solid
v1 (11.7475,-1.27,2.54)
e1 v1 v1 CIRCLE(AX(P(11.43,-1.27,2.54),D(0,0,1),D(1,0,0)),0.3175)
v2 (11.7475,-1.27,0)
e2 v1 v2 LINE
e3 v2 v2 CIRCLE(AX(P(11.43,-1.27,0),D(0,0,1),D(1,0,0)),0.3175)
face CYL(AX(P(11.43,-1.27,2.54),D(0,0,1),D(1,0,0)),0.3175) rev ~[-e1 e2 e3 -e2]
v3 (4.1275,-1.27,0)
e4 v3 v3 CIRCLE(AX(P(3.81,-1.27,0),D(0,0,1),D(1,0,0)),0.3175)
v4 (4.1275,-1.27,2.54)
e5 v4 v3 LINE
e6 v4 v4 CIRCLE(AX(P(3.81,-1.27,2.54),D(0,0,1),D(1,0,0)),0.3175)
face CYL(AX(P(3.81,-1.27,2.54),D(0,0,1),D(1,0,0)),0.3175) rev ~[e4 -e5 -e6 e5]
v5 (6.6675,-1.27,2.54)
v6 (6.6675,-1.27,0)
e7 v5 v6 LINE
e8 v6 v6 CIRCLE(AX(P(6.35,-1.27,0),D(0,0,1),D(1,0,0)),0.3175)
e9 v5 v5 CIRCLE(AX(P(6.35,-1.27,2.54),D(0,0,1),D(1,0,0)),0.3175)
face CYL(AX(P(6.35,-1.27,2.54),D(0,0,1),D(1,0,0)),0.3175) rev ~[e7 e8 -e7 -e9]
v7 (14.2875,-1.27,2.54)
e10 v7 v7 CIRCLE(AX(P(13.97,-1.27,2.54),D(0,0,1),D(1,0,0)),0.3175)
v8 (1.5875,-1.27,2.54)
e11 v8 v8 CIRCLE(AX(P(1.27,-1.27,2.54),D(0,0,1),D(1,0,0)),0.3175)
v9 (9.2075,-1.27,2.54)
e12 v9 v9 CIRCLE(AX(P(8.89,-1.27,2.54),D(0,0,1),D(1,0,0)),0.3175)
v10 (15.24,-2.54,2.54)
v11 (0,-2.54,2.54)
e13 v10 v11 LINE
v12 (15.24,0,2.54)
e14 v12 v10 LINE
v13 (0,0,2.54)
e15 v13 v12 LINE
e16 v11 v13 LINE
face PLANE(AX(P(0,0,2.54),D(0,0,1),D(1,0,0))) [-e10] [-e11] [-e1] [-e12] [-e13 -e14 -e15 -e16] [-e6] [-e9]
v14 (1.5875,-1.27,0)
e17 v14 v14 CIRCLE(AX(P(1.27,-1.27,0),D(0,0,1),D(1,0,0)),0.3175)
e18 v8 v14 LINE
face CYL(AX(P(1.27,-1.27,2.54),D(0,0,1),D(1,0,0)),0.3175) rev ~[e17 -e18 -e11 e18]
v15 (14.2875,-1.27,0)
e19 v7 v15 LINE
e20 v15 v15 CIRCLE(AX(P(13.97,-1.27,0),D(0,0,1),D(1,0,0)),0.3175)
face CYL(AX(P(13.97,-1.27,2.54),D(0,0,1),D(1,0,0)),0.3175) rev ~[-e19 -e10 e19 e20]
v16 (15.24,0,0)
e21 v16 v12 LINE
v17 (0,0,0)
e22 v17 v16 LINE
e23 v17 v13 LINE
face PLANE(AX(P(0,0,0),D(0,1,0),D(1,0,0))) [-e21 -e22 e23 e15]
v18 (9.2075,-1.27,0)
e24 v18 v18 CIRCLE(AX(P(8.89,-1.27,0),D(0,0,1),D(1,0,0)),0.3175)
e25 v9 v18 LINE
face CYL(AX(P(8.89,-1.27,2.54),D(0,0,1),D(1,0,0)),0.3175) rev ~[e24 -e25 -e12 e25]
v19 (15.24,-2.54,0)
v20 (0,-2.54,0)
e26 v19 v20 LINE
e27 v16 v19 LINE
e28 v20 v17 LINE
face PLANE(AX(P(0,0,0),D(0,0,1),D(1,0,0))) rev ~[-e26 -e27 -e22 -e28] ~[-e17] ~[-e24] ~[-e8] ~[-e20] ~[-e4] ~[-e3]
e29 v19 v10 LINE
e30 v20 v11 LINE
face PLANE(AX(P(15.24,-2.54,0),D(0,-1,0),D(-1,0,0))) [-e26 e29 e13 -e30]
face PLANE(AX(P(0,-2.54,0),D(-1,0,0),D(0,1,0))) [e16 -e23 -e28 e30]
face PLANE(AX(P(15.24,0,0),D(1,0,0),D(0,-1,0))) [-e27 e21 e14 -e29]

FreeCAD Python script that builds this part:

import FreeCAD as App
import Part
import Sketcher
from FreeCAD import Vector
Q = App.Units.Quantity


def add_polygon(sketch, points):
    """Adds a closed chain of lines whose ends are joined by coincident constraints."""
    first, n = sketch.GeometryCount, len(points)
    for a, b in zip(points, points[1:] + points[:1]):
        sketch.addGeometry(Part.LineSegment(App.Vector(*a, 0), App.Vector(*b, 0)), False)
    for i in range(n):
        sketch.addConstraint(Sketcher.Constraint("Coincident", first + i, 2, first + (i + 1) % n, 1))

doc = App.newDocument("Part")
body = doc.addObject("PartDesign::Body", "Body")

# Sketch on XY plane
sketch1 = body.newObject("Sketcher::SketchObject", "Sketch")
sketch1.AttachmentSupport = (doc.getObject("XY_Plane"), [""])
sketch1.MapMode = "FlatFace"
add_polygon(sketch1, [(15.2, 0), (0, 0), (0, -2.5), (15.2, -2.5)])  # lines 0-3
sketch1.addConstraint([
    Sketcher.Constraint("Horizontal", 0),
    Sketcher.Constraint("Vertical", 1),
    Sketcher.Constraint("Horizontal", 2),
    Sketcher.Constraint("Vertical", 3),
    Sketcher.Constraint("Coincident", 0, 2, -1, 1),
    Sketcher.Constraint("DistanceX", 0, 2, 0, 1, Q("0.6 in")),
    Sketcher.Constraint("DistanceY", 1, 2, 1, 1, Q("0.1 in")),
])
pad1 = body.newObject("PartDesign::Pad", "Pad")
pad1.Profile = sketch1
pad1.Length = Q("0.1 in")

# Sketch on XY plane
sketch2 = body.newObject("Sketcher::SketchObject", "Sketch001")
sketch2.AttachmentSupport = (doc.getObject("XY_Plane"), [""])
sketch2.MapMode = "FlatFace"
sketch2.AttachmentOffset = App.Placement(Vector(0, 0, 0.1 * 25.4), App.Rotation())
sketch2.addGeometry([
    Part.Circle(Vector(1.27, -1.27, 0), Vector(0, 0, 1), 0.32),  # 0
    Part.Circle(Vector(3.81, -1.27, 0), Vector(0, 0, 1), 0.32),  # 1
    Part.Circle(Vector(6.35, -1.27, 0), Vector(0, 0, 1), 0.32),  # 2
    Part.Circle(Vector(8.89, -1.27, 0), Vector(0, 0, 1), 0.32),  # 3
    Part.Circle(Vector(11.43, -1.27, 0), Vector(0, 0, 1), 0.32),  # 4
    Part.Circle(Vector(13.97, -1.27, 0), Vector(0, 0, 1), 0.32),  # 5
], False)
sketch2.addConstraint([
    Sketcher.Constraint("Equal", 0, 1),
    Sketcher.Constraint("Equal", 1, 2),
    Sketcher.Constraint("Equal", 2, 3),
    Sketcher.Constraint("Equal", 3, 4),
    Sketcher.Constraint("Equal", 4, 5),
    Sketcher.Constraint("Horizontal", 0, 3, 1, 3),
    Sketcher.Constraint("Horizontal", 1, 3, 2, 3),
    Sketcher.Constraint("Horizontal", 2, 3, 3, 3),
    Sketcher.Constraint("Horizontal", 3, 3, 4, 3),
    Sketcher.Constraint("Horizontal", 4, 3, 5, 3),
    Sketcher.Constraint("Diameter", 0, Q("0.025 in")),
    Sketcher.Constraint("DistanceX", 0, 3, 1, 3, Q("0.1 in")),
    Sketcher.Constraint("DistanceX", 1, 3, 2, 3, Q("0.1 in")),
    Sketcher.Constraint("DistanceX", 2, 3, 3, 3, Q("0.1 in")),
    Sketcher.Constraint("DistanceX", 3, 3, 4, 3, Q("0.1 in")),
    Sketcher.Constraint("DistanceX", 4, 3, 5, 3, Q("0.1 in")),
    Sketcher.Constraint("DistanceX", -1, 1, 0, 3, Q("0.05 in")),
    Sketcher.Constraint("DistanceY", 0, 3, -1, 1, Q("0.05 in")),
])
pocket1 = body.newObject("PartDesign::Pocket", "Pocket")
pocket1.Profile = sketch2
pocket1.Length = Q("0.1 in")

doc.recompute()
